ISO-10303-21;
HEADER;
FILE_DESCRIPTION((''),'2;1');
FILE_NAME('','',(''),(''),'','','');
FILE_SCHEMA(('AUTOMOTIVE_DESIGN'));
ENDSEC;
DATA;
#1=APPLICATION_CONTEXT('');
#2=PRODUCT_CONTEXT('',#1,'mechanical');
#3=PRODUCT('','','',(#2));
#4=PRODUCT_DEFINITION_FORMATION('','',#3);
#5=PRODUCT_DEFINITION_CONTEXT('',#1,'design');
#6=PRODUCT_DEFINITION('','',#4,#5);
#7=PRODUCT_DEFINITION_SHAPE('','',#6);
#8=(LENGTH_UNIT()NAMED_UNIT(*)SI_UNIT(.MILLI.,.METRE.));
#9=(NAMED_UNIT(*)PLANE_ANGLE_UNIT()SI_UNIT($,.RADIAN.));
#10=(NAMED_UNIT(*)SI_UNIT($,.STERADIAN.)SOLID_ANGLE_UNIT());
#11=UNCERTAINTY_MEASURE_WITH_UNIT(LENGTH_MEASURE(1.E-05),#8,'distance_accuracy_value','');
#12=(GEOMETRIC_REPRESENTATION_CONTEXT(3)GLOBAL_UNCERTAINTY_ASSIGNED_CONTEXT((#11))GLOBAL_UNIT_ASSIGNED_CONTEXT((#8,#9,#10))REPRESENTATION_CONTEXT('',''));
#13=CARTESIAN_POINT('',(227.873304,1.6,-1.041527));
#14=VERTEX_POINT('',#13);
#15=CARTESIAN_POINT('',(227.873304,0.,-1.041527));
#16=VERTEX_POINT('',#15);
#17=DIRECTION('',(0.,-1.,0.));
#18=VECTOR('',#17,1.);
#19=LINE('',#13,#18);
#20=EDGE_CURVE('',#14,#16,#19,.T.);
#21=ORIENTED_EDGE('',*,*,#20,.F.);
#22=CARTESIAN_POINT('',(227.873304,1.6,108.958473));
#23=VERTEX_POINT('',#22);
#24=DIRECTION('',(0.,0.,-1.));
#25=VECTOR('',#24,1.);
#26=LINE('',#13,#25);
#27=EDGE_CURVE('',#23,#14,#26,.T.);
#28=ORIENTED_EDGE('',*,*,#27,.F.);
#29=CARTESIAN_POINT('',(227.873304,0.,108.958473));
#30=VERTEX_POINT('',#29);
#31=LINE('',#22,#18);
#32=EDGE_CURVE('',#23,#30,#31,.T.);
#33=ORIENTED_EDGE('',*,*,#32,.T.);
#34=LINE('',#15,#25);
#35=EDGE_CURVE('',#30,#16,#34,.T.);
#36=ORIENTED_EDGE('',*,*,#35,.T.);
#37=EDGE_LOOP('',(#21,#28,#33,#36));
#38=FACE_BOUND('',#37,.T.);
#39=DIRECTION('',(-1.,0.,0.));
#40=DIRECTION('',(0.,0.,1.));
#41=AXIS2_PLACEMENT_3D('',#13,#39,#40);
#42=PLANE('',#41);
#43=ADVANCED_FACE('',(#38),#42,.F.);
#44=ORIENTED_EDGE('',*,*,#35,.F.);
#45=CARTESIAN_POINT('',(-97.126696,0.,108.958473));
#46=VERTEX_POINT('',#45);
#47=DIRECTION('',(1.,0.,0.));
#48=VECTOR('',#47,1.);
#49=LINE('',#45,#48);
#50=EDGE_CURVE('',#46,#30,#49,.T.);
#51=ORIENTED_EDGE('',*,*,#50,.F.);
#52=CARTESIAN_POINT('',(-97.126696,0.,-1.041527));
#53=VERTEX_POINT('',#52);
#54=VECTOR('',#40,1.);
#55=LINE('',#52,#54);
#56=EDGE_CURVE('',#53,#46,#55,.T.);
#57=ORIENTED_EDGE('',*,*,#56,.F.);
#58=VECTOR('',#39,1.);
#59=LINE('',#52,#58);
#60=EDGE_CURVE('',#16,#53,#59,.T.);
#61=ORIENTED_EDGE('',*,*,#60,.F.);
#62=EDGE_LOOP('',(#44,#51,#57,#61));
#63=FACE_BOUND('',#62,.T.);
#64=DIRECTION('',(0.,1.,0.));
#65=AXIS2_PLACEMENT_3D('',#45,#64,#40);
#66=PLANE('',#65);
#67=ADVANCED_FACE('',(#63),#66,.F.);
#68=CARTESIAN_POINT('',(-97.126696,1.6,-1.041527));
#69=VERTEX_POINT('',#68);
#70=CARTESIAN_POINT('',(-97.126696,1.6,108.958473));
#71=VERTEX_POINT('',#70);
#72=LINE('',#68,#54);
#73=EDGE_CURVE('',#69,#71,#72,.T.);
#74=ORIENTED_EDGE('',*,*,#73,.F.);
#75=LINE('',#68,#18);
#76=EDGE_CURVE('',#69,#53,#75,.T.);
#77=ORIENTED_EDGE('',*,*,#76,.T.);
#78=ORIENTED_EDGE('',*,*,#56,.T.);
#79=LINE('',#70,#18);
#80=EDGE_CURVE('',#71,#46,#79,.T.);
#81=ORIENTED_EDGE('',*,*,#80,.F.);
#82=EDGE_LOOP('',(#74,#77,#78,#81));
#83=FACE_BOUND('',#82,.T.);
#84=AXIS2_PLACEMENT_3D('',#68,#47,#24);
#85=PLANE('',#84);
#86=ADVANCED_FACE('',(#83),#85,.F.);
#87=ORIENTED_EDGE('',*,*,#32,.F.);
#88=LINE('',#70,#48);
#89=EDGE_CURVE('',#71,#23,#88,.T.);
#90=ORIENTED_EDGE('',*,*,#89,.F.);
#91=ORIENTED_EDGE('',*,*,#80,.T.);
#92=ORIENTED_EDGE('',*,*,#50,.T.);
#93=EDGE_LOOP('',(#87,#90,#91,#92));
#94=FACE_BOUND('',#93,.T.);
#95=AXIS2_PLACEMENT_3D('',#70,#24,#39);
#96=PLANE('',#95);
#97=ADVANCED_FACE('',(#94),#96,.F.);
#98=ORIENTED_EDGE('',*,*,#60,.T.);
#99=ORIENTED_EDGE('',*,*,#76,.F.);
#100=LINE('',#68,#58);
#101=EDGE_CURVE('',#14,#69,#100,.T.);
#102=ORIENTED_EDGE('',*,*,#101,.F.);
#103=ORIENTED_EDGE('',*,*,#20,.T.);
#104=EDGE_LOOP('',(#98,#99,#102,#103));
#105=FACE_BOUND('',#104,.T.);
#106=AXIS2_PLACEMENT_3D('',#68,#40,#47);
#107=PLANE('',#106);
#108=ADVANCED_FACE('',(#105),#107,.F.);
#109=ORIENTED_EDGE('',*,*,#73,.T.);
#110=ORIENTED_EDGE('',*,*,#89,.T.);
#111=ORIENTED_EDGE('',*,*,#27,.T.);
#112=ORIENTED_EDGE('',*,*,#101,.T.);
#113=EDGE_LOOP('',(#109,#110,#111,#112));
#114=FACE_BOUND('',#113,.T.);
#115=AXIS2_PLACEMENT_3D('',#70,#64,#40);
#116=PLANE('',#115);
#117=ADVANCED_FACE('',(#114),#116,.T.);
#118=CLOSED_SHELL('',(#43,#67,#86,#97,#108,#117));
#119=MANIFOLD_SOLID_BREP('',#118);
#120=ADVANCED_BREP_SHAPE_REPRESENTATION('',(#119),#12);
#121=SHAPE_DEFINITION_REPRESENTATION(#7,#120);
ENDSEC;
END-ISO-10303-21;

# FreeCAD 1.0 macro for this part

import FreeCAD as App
import Part
import Sketcher

doc = App.newDocument("Part")
body = doc.addObject("PartDesign::Body", "Body")

sketch1 = doc.addObject("Sketcher::SketchObject", "Sketch")
body.addObject(sketch1)
sketch1.AttachmentSupport = (doc.XZ_Plane, [""])
sketch1.MapMode = "FlatFace"
sketch1.addGeometry([
    Part.LineSegment(App.Vector(-97, -1, 0), App.Vector(-97, 109, 0)),
    Part.LineSegment(App.Vector(-97, 109, 0), App.Vector(228, 109, 0)),
    Part.LineSegment(App.Vector(228, 109, 0), App.Vector(228, -1, 0)),
    Part.LineSegment(App.Vector(228, -1, 0), App.Vector(-97, -1, 0)),
], False)
sketch1.addConstraint([
    Sketcher.Constraint("Coincident", 0, 2, 1, 1),
    Sketcher.Constraint("Coincident", 1, 2, 2, 1),
    Sketcher.Constraint("Coincident", 2, 2, 3, 1),
    Sketcher.Constraint("Coincident", 3, 2, 0, 1),
    Sketcher.Constraint("Vertical", 0),
    Sketcher.Constraint("Horizontal", 1),
    Sketcher.Constraint("Vertical", 2),
    Sketcher.Constraint("Horizontal", 3),
    Sketcher.Constraint("DistanceX", 1, 1, 1, 2, 325.0),
    Sketcher.Constraint("DistanceY", 0, 1, 0, 2, 110.0),
    Sketcher.Constraint("DistanceX", 0, 2, -1, 1, 97.126696),
    Sketcher.Constraint("DistanceY", -1, 1, 0, 2, 108.958473),
])
pad1 = doc.addObject("PartDesign::Pad", "Pad")
body.addObject(pad1)
pad1.Profile = sketch1
pad1.Length = 1.6
pad1.Reversed = True

doc.recompute()
